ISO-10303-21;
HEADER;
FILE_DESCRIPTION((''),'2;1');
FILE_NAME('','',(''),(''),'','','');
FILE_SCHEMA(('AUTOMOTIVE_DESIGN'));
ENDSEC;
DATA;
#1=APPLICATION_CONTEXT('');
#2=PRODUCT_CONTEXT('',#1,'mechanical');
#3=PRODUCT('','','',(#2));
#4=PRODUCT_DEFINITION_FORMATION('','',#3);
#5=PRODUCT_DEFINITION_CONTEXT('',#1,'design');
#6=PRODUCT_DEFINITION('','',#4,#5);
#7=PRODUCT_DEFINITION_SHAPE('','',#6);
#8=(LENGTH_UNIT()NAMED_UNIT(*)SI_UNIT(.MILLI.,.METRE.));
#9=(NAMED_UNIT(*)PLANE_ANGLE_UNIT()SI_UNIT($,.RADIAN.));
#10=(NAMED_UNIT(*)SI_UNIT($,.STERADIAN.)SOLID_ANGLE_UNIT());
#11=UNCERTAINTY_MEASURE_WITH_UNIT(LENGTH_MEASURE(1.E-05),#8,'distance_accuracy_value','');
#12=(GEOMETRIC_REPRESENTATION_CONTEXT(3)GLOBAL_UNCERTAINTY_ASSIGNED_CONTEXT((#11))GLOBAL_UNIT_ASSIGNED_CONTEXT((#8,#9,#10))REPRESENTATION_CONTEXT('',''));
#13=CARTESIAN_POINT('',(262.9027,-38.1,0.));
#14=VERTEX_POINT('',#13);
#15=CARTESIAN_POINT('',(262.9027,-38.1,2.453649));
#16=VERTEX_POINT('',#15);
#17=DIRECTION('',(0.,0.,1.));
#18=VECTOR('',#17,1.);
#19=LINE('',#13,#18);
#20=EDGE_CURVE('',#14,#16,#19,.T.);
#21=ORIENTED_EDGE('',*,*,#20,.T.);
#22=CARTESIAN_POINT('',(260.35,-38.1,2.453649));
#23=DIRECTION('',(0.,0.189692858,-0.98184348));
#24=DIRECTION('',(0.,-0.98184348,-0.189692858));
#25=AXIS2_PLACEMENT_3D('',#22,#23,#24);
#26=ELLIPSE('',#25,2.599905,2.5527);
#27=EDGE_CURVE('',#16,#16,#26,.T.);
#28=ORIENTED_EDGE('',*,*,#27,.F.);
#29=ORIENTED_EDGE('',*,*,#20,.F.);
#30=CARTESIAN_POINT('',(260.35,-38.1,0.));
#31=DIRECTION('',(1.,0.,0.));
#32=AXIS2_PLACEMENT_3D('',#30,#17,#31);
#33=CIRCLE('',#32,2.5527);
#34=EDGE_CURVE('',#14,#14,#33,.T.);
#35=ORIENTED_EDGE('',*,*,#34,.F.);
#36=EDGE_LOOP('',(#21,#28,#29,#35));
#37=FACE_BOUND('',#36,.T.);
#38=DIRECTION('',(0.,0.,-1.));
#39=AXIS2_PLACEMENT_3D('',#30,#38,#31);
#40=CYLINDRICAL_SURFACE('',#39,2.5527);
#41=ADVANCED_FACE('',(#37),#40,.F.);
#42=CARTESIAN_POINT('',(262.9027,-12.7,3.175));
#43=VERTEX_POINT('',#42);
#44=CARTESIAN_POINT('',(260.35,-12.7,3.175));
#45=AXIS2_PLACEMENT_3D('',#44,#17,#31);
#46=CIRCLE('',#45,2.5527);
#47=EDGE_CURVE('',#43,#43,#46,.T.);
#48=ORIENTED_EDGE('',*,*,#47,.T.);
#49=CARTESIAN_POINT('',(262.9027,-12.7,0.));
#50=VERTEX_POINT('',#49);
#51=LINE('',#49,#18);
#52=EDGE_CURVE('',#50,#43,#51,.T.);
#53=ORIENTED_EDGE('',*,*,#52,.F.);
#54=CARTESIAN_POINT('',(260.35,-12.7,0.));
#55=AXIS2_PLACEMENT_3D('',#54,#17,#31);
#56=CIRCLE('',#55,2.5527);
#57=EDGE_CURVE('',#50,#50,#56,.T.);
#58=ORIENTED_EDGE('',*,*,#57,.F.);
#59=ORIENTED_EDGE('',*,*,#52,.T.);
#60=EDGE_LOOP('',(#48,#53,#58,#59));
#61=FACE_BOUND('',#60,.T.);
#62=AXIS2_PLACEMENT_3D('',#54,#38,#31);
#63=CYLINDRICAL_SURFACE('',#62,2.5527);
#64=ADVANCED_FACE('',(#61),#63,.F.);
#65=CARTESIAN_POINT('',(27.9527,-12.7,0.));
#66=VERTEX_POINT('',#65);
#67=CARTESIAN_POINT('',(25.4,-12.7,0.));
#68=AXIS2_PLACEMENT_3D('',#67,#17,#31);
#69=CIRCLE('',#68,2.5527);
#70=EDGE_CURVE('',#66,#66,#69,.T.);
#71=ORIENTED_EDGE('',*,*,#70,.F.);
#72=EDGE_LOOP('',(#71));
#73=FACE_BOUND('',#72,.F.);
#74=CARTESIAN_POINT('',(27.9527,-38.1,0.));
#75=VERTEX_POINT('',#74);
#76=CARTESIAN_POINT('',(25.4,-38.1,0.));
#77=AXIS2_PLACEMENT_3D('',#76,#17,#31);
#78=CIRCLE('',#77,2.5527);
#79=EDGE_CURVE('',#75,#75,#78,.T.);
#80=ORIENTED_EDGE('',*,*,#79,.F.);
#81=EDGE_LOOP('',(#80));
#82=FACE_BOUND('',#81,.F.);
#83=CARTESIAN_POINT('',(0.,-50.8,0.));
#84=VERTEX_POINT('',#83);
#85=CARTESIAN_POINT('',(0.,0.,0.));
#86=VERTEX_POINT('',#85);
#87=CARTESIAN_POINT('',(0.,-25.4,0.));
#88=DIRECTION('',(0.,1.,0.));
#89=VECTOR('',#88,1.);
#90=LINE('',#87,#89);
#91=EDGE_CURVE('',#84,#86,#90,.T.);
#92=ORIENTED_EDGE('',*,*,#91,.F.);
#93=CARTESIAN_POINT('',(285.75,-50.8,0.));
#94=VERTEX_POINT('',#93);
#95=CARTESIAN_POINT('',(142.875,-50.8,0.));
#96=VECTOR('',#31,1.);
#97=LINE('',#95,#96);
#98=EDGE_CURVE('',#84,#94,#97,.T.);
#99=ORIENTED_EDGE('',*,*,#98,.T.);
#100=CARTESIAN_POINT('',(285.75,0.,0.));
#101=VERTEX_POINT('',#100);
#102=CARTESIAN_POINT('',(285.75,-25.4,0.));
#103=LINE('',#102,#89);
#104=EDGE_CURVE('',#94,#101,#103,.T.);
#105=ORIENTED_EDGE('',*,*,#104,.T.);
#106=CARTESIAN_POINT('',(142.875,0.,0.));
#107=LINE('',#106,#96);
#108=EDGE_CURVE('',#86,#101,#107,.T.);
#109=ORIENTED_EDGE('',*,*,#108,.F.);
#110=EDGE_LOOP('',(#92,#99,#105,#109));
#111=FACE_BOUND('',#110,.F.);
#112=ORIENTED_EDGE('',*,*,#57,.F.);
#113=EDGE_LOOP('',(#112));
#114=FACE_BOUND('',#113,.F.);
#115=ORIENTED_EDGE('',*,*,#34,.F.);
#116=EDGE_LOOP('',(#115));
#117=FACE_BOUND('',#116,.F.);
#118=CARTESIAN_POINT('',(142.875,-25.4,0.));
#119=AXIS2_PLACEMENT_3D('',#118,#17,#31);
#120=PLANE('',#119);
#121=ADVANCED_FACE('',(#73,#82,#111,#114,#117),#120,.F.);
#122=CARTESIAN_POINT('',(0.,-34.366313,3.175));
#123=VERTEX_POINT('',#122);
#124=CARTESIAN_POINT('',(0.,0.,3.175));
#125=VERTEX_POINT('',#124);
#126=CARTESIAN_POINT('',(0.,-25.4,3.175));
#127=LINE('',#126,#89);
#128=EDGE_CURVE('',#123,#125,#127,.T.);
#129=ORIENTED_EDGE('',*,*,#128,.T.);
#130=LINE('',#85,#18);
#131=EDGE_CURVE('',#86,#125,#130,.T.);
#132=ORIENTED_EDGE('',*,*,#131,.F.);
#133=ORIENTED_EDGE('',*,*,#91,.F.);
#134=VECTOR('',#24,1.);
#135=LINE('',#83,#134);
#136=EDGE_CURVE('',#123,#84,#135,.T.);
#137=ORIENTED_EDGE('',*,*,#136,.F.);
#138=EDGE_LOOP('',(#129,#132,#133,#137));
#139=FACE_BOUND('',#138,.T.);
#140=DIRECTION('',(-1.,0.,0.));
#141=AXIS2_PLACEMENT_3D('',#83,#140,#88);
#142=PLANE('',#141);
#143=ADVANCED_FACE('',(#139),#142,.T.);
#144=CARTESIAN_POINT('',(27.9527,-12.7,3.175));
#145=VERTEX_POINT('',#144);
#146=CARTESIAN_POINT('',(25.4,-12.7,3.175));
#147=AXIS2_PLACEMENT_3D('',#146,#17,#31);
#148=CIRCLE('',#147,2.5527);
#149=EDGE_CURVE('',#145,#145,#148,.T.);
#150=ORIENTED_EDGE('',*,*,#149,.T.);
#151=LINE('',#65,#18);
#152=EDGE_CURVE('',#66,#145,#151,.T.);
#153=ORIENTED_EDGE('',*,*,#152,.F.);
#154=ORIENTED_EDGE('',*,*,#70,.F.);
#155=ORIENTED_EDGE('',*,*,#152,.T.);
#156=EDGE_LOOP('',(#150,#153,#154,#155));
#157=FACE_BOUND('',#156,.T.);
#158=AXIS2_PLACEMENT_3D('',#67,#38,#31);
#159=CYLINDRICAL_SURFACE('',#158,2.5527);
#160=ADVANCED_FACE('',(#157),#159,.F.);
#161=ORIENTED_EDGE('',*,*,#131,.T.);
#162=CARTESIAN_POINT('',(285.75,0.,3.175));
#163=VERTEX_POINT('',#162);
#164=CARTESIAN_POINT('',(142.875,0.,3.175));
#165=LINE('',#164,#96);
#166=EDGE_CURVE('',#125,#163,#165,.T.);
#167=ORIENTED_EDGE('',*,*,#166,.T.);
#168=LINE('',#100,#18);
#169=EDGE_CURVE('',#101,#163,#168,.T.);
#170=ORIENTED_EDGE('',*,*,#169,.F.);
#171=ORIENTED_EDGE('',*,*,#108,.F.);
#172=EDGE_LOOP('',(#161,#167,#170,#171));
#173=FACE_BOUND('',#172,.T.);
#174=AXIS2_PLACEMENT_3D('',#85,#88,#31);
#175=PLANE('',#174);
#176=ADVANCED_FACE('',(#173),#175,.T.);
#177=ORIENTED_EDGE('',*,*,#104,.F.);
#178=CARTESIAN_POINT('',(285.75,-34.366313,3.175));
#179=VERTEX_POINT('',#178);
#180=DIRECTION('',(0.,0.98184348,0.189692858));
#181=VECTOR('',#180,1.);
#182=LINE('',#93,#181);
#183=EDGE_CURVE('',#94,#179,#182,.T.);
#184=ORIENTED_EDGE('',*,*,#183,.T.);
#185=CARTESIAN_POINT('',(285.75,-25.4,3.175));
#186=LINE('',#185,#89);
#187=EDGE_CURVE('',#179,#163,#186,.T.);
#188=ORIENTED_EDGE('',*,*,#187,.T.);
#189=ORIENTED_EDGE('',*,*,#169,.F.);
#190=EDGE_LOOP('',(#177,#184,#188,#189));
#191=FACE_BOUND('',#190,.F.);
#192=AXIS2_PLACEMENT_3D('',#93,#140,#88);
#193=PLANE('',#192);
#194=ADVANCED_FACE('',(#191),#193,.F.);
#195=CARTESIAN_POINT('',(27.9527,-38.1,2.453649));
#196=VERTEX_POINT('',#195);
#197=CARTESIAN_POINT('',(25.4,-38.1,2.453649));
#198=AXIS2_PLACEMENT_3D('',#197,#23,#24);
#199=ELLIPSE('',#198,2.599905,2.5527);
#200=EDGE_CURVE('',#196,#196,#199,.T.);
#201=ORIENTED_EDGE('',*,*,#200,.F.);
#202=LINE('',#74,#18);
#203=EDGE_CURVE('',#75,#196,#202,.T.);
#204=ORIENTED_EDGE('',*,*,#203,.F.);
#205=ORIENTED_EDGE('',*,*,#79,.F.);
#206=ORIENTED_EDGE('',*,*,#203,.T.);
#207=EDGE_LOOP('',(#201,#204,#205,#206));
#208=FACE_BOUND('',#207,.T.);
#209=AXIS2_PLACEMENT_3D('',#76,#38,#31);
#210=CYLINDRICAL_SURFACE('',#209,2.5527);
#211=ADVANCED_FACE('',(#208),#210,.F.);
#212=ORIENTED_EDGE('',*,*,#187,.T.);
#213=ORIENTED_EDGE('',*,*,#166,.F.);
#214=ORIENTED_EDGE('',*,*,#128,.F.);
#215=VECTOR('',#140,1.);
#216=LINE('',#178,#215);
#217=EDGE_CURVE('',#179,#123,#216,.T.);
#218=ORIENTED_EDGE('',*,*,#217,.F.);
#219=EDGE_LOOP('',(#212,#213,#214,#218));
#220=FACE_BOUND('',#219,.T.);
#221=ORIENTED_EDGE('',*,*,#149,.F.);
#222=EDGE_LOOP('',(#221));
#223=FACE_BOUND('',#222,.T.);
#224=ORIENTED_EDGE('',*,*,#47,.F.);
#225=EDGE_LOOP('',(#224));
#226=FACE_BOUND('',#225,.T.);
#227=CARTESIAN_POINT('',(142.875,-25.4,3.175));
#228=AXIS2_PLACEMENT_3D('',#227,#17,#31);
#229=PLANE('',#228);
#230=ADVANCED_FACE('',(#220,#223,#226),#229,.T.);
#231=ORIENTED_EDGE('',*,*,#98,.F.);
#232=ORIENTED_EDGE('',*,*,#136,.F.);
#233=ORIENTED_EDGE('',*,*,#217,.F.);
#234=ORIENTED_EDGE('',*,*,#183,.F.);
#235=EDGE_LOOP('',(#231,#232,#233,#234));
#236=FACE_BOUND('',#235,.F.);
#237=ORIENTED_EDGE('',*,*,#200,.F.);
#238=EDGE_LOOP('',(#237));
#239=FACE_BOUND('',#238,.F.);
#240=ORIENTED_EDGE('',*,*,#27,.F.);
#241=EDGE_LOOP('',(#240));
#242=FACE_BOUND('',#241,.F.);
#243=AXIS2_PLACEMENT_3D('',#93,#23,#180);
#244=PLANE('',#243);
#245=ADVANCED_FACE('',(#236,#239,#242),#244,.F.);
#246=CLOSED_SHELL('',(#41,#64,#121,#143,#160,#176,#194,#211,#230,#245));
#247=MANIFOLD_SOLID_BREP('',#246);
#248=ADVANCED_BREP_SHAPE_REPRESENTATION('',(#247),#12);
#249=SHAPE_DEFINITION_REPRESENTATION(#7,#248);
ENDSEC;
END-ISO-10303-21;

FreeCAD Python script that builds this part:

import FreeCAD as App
import Part
import Sketcher

V = App.Vector
Q = App.Units.Quantity


def add_polygon(sketch, points):
    """Adds a closed chain of lines whose ends are joined by coincident constraints."""
    first, n = sketch.GeometryCount, len(points)
    for a, b in zip(points, points[1:] + points[:1]):
        sketch.addGeometry(Part.LineSegment(App.Vector(*a, 0), App.Vector(*b, 0)), False)
    for i in range(n):
        sketch.addConstraint(Sketcher.Constraint("Coincident", first + i, 2, first + (i + 1) % n, 1))

doc = App.newDocument("Part")
params = doc.addObject("Spreadsheet::Sheet", "Params")
for row, (alias, value) in enumerate([
    ("sketch1_height", "2 in"),
    ("sketch1_diameter", "0.201 in"),
    ("sketch1_width", "11.25 in"),
    ("pad1_length", "0.125 in"),
    ("sketch2_height", "0.125 in"),
], start=1):
    params.set(f"A{row}", alias)
    params.set(f"B{row}", "=" + value)
    params.setAlias(f"B{row}", alias)

body = doc.addObject("PartDesign::Body", "Body")

sketch1 = body.newObject("Sketcher::SketchObject", "Sketch")
sketch1.AttachmentSupport = (doc.getObject("XY_Plane"), [""])
sketch1.MapMode = "FlatFace"
add_polygon(sketch1, [(0, 0), (0, -50.8), (285.8, -50.8), (285.8, 0)])
sketch1.addGeometry(Part.Circle(V(25.4, -38.1, 0), V(0, 0, 1), 2.6), False)
sketch1.addGeometry(Part.Circle(V(260.4, -38.1, 0), V(0, 0, 1), 2.6), False)
sketch1.addGeometry(Part.Circle(V(25.4, -12.7, 0), V(0, 0, 1), 2.6), False)
sketch1.addGeometry(Part.Circle(V(260.4, -12.7, 0), V(0, 0, 1), 2.6), False)
sketch1.addConstraint([
    Sketcher.Constraint("Vertical", 0),
    Sketcher.Constraint("Horizontal", 1),
    Sketcher.Constraint("Vertical", 2),
    Sketcher.Constraint("Horizontal", 3),
    Sketcher.Constraint("Coincident", 3, 2, -1, 1),
    Sketcher.Constraint("Equal", 4, 5),
    Sketcher.Constraint("Equal", 5, 6),
    Sketcher.Constraint("Equal", 6, 7),
    Sketcher.Constraint("Horizontal", 4, 3, 5, 3),
    Sketcher.Constraint("Horizontal", 6, 3, 7, 3),
    Sketcher.Constraint("Vertical", 4, 3, 6, 3),
    Sketcher.Constraint("Vertical", 5, 3, 7, 3),
    Sketcher.Constraint("DistanceY", 0, 2, 0, 1, Q("2 in")),
    Sketcher.Constraint("Diameter", 4, Q("0.201 in")),
    Sketcher.Constraint("DistanceX", -1, 1, 4, 3, Q("1 in")),
    Sketcher.Constraint("DistanceY", 4, 3, 6, 3, Q("1 in")),
    Sketcher.Constraint("DistanceX", 5, 3, 1, 2, Q("1 in")),
    Sketcher.Constraint("DistanceX", 1, 1, 1, 2, Q("11.25 in")),
    Sketcher.Constraint("DistanceY", 4, 3, -1, 1, Q("1.5 in")),
])
sketch1.setExpression("Constraints[16]", "Params.sketch1_height")
sketch1.setExpression("Constraints[17]", "Params.sketch1_diameter")
sketch1.setExpression("Constraints[21]", "Params.sketch1_width")
pad1 = body.newObject("PartDesign::Pad", "Pad")
pad1.Profile = sketch1
pad1.setExpression("Length", "Params.pad1_length")

sketch2 = body.newObject("Sketcher::SketchObject", "Sketch001")
sketch2.AttachmentSupport = (doc.getObject("YZ_Plane"), [""])
sketch2.MapMode = "FlatFace"
sketch2.AttachmentOffset = App.Placement(V(0, 0, 11.25 * 25.4), App.Rotation())
add_polygon(sketch2, [(-50.8, 3.2), (-50.8, 0), (-34.4, 3.2)])
sketch2.addConstraint([
    Sketcher.Constraint("Vertical", 0),
    Sketcher.Constraint("Horizontal", 2),
    Sketcher.Constraint("PointOnObject", 0, 2, -1),
    Sketcher.Constraint("DistanceX", 0, 2, -1, 1, Q("2 in")),
    Sketcher.Constraint("DistanceY", 0, 2, 0, 1, Q("0.125 in")),
    Sketcher.Constraint("DistanceX", 2, 2, 2, 1, Q("16.433687 mm")),
])
sketch2.setExpression("Constraints[7]", "Params.sketch2_height")
pocket1 = body.newObject("PartDesign::Pocket", "Pocket")
pocket1.Profile = sketch2
pocket1.Type = "ThroughAll"

doc.recompute()
